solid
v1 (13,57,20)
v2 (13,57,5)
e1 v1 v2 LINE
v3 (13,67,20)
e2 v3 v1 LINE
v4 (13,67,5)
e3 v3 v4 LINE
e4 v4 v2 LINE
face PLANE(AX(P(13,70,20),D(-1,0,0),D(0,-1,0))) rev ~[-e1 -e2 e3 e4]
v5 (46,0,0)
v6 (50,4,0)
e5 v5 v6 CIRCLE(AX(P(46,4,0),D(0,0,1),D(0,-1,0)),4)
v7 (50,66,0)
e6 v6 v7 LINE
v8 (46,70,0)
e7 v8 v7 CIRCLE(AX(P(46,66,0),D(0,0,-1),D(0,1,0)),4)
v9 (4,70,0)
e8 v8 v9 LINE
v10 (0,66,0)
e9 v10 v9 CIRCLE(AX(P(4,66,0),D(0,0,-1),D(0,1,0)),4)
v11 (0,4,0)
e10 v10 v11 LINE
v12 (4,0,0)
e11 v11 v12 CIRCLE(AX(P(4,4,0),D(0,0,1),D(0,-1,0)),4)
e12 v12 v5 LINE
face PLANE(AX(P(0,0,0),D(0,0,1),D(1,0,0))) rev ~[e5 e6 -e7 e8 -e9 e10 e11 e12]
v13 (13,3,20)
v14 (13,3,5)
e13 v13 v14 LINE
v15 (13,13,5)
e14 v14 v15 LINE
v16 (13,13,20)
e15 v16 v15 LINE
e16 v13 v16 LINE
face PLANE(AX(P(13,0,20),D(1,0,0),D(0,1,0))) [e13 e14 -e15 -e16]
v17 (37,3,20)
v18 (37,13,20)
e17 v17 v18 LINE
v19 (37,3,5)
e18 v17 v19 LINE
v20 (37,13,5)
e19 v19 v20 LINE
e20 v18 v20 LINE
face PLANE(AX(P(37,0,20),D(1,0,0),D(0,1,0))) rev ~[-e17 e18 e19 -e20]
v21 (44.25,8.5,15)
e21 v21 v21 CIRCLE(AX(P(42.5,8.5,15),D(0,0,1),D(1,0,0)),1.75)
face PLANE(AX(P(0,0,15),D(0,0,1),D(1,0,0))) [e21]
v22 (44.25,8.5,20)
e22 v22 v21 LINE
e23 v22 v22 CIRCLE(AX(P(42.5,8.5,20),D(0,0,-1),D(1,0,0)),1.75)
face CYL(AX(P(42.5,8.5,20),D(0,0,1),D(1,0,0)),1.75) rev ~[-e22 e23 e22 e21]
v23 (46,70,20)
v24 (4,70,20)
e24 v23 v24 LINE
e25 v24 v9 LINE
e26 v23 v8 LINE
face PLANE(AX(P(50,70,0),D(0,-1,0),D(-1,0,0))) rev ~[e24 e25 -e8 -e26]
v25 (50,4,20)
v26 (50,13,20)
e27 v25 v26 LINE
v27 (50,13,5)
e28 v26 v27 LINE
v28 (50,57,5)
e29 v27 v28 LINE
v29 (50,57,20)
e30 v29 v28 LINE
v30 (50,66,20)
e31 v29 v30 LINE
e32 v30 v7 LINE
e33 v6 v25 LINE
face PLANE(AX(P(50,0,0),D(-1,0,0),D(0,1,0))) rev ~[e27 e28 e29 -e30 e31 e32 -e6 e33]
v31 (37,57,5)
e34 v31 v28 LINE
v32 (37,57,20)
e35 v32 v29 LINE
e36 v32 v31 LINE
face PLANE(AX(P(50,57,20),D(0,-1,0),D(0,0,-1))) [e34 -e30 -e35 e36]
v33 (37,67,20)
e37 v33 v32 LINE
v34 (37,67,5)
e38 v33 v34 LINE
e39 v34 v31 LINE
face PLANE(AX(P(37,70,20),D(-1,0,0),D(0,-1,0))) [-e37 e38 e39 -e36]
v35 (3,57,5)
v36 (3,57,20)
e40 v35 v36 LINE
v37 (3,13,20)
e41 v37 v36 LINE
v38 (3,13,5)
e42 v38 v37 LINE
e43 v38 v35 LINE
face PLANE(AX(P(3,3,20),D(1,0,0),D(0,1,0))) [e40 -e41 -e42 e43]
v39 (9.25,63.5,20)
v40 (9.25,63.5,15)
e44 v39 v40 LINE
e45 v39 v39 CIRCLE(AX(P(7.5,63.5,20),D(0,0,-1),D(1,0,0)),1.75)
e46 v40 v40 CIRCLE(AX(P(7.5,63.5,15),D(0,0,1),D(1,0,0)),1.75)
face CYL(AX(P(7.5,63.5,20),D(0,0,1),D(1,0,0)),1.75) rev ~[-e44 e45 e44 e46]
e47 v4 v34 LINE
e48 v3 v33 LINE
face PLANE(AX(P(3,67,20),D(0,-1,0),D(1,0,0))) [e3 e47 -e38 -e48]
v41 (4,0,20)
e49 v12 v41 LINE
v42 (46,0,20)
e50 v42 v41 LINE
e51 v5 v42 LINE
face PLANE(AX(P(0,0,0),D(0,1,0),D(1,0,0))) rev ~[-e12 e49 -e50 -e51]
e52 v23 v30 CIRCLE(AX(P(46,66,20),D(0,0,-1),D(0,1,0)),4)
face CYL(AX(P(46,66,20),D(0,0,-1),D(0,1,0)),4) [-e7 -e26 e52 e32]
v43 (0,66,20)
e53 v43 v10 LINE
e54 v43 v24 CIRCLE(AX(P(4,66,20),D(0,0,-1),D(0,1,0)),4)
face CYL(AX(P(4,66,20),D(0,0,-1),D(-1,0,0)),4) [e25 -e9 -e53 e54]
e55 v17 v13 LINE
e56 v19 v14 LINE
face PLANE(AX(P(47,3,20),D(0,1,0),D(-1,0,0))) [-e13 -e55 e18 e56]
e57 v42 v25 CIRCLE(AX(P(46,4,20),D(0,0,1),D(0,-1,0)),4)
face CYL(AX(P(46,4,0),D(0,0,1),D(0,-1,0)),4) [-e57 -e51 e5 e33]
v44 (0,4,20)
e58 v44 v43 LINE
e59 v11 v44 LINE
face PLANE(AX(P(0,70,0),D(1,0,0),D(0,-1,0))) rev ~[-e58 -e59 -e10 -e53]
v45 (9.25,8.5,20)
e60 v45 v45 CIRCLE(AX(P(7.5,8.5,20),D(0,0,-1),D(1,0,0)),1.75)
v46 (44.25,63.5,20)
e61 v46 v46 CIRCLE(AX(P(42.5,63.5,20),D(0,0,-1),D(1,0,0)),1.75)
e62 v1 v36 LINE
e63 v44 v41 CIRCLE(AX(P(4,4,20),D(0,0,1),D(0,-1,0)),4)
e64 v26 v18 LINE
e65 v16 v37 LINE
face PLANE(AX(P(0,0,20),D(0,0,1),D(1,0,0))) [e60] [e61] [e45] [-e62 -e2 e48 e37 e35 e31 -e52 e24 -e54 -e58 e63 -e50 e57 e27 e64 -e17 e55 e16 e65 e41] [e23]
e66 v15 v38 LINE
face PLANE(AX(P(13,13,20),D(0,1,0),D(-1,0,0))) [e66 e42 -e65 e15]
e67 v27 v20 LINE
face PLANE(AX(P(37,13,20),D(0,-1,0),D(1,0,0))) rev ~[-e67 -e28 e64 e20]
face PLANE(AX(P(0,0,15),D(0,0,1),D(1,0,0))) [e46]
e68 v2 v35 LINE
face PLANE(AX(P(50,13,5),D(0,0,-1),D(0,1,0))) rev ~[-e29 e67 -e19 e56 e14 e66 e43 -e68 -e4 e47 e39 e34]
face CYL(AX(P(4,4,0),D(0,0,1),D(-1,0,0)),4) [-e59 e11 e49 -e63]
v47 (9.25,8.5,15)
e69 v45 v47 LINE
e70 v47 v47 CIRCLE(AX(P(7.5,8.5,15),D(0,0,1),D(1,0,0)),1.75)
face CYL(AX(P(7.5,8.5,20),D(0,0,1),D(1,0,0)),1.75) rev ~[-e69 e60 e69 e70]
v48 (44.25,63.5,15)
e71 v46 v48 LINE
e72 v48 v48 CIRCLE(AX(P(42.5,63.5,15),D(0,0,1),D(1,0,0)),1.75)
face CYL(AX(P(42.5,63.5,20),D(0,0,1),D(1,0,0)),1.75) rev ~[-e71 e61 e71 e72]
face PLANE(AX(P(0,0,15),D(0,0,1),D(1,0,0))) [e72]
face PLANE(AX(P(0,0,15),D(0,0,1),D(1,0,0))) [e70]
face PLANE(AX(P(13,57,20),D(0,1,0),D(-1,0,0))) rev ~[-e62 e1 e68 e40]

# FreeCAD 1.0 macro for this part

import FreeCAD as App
import Part
import Sketcher
Q = App.Units.Quantity


def edges_at(feature, points):
    """Names of the edges that pass closest to the given points."""
    edges = feature.Shape.Edges
    near = lambda p: min(range(len(edges)), key=lambda i: edges[i].distToShape(Part.Vertex(*p))[0])
    return sorted({f"Edge{near(p) + 1}" for p in points})

doc = App.newDocument("Part")
body = doc.addObject("PartDesign::Body", "Body")

# Sketch on XY plane
sketch1 = doc.addObject("Sketcher::SketchObject", "Sketch")
body.addObject(sketch1)
sketch1.AttachmentSupport = (doc.XY_Plane, [""])
sketch1.MapMode = "FlatFace"
sketch1.addGeometry([
    Part.LineSegment(App.Vector(0, 70, 0), App.Vector(0, 0, 0)),
    Part.LineSegment(App.Vector(0, 0, 0), App.Vector(50, 0, 0)),
    Part.LineSegment(App.Vector(50, 0, 0), App.Vector(50, 70, 0)),
    Part.LineSegment(App.Vector(50, 70, 0), App.Vector(0, 70, 0)),
], False)
sketch1.addConstraint([
    Sketcher.Constraint("Coincident", 0, 2, 1, 1),
    Sketcher.Constraint("Coincident", 1, 2, 2, 1),
    Sketcher.Constraint("Coincident", 2, 2, 3, 1),
    Sketcher.Constraint("Coincident", 3, 2, 0, 1),
    Sketcher.Constraint("Vertical", 0),
    Sketcher.Constraint("Horizontal", 1),
    Sketcher.Constraint("Vertical", 2),
    Sketcher.Constraint("Horizontal", 3),
    Sketcher.Constraint("Coincident", 0, 2, -1, 1),
    Sketcher.Constraint("DistanceX", 1, 1, 1, 2, Q("50 mm")),
    Sketcher.Constraint("DistanceY", 0, 2, 0, 1, Q("70 mm")),
])
pad1 = doc.addObject("PartDesign::Pad", "Pad")
body.addObject(pad1)
pad1.Profile = sketch1
pad1.Length = 20

# Sketch on XY plane
sketch2 = doc.addObject("Sketcher::SketchObject", "Sketch001")
body.addObject(sketch2)
sketch2.AttachmentSupport = (doc.XY_Plane, [""])
sketch2.MapMode = "FlatFace"
sketch2.AttachmentOffset = App.Placement(App.Vector(0, 0, 20), App.Rotation())
sketch2.addGeometry([
    Part.LineSegment(App.Vector(47, 67, 0), App.Vector(3, 67, 0)),
    Part.LineSegment(App.Vector(3, 67, 0), App.Vector(3, 3, 0)),
    Part.LineSegment(App.Vector(3, 3, 0), App.Vector(47, 3, 0)),
    Part.LineSegment(App.Vector(47, 3, 0), App.Vector(47, 67, 0)),
], False)
sketch2.addConstraint([
    Sketcher.Constraint("Coincident", 0, 2, 1, 1),
    Sketcher.Constraint("Coincident", 1, 2, 2, 1),
    Sketcher.Constraint("Coincident", 2, 2, 3, 1),
    Sketcher.Constraint("Coincident", 3, 2, 0, 1),
    Sketcher.Constraint("Horizontal", 0),
    Sketcher.Constraint("Vertical", 1),
    Sketcher.Constraint("Horizontal", 2),
    Sketcher.Constraint("Vertical", 3),
    Sketcher.Constraint("DistanceX", 0, 2, 0, 1, Q("44 mm")),
    Sketcher.Constraint("DistanceY", 1, 2, 1, 1, Q("64 mm")),
    Sketcher.Constraint("DistanceX", -1, 1, 0, 2, Q("3 mm")),
    Sketcher.Constraint("DistanceY", -1, 1, 1, 2, Q("3 mm")),
])
pocket1 = doc.addObject("PartDesign::Pocket", "Pocket")
body.addObject(pocket1)
pocket1.Profile = sketch2
pocket1.Length = 15

# Sketch on XY plane
sketch3 = doc.addObject("Sketcher::SketchObject", "Sketch002")
body.addObject(sketch3)
sketch3.AttachmentSupport = (doc.XY_Plane, [""])
sketch3.MapMode = "FlatFace"
sketch3.AttachmentOffset = App.Placement(App.Vector(0, 0, 20), App.Rotation())
sketch3.addGeometry([
    Part.LineSegment(App.Vector(50, 57, 0), App.Vector(50, 70, 0)),  # 0
    Part.LineSegment(App.Vector(50, 70, 0), App.Vector(37, 70, 0)),  # 1
    Part.LineSegment(App.Vector(37, 70, 0), App.Vector(37, 57, 0)),  # 2
    Part.LineSegment(App.Vector(37, 57, 0), App.Vector(50, 57, 0)),  # 3
    Part.LineSegment(App.Vector(13, 57, 0), App.Vector(13, 70, 0)),  # 4
    Part.LineSegment(App.Vector(13, 70, 0), App.Vector(0, 70, 0)),  # 5
    Part.LineSegment(App.Vector(0, 70, 0), App.Vector(0, 57, 0)),  # 6
    Part.LineSegment(App.Vector(0, 57, 0), App.Vector(13, 57, 0)),  # 7
    Part.LineSegment(App.Vector(0, 13, 0), App.Vector(0, 0, 0)),  # 8
    Part.LineSegment(App.Vector(0, 0, 0), App.Vector(13, 0, 0)),  # 9
    Part.LineSegment(App.Vector(13, 0, 0), App.Vector(13, 13, 0)),  # 10
    Part.LineSegment(App.Vector(13, 13, 0), App.Vector(0, 13, 0)),  # 11
    Part.LineSegment(App.Vector(37, 13, 0), App.Vector(37, 0, 0)),  # 12
    Part.LineSegment(App.Vector(37, 0, 0), App.Vector(50, 0, 0)),  # 13
    Part.LineSegment(App.Vector(50, 0, 0), App.Vector(50, 13, 0)),  # 14
    Part.LineSegment(App.Vector(50, 13, 0), App.Vector(37, 13, 0)),  # 15
], False)
sketch3.addConstraint([
    Sketcher.Constraint("Coincident", 0, 2, 1, 1),
    Sketcher.Constraint("Coincident", 1, 2, 2, 1),
    Sketcher.Constraint("Coincident", 2, 2, 3, 1),
    Sketcher.Constraint("Coincident", 3, 2, 0, 1),
    Sketcher.Constraint("Coincident", 4, 2, 5, 1),
    Sketcher.Constraint("Coincident", 5, 2, 6, 1),
    Sketcher.Constraint("Coincident", 6, 2, 7, 1),
    Sketcher.Constraint("Coincident", 7, 2, 4, 1),
    Sketcher.Constraint("Coincident", 8, 2, 9, 1),
    Sketcher.Constraint("Coincident", 9, 2, 10, 1),
    Sketcher.Constraint("Coincident", 10, 2, 11, 1),
    Sketcher.Constraint("Coincident", 11, 2, 8, 1),
    Sketcher.Constraint("Coincident", 12, 2, 13, 1),
    Sketcher.Constraint("Coincident", 13, 2, 14, 1),
    Sketcher.Constraint("Coincident", 14, 2, 15, 1),
    Sketcher.Constraint("Coincident", 15, 2, 12, 1),
    Sketcher.Constraint("Vertical", 0),
    Sketcher.Constraint("Horizontal", 1),
    Sketcher.Constraint("Vertical", 2),
    Sketcher.Constraint("Horizontal", 3),
    Sketcher.Constraint("Vertical", 4),
    Sketcher.Constraint("Horizontal", 5),
    Sketcher.Constraint("Vertical", 6),
    Sketcher.Constraint("Horizontal", 7),
    Sketcher.Constraint("Vertical", 8),
    Sketcher.Constraint("Horizontal", 9),
    Sketcher.Constraint("Vertical", 10),
    Sketcher.Constraint("Horizontal", 11),
    Sketcher.Constraint("Vertical", 12),
    Sketcher.Constraint("Horizontal", 13),
    Sketcher.Constraint("Vertical", 14),
    Sketcher.Constraint("Horizontal", 15),
    Sketcher.Constraint("Coincident", 8, 2, -1, 1),
    Sketcher.Constraint("PointOnObject", 5, 2, -2),
    Sketcher.Constraint("PointOnObject", 12, 2, -1),
    Sketcher.Constraint("Horizontal", 1, 2, 4, 2),
    Sketcher.Constraint("Horizontal", 3, 2, 6, 2),
    Sketcher.Constraint("Horizontal", 11, 2, 14, 2),
    Sketcher.Constraint("Vertical", 7, 2, 9, 2),
    Sketcher.Constraint("Vertical", 2, 2, 12, 2),
    Sketcher.Constraint("Vertical", 3, 2, 13, 2),
    Sketcher.Constraint("Equal", 3, 5),
    Sketcher.Constraint("Equal", 15, 0),
    Sketcher.Constraint("Equal", 6, 8),
    Sketcher.Constraint("DistanceX", 1, 2, 1, 1, Q("13 mm")),
    Sketcher.Constraint("DistanceX", -1, 1, 0, 2, Q("50 mm")),
    Sketcher.Constraint("DistanceY", -1, 1, 0, 2, Q("70 mm")),
])
pad2 = doc.addObject("PartDesign::Pad", "Pad001")
body.addObject(pad2)
pad2.Profile = sketch3
pad2.Length = 15
pad2.Reversed = True

# Sketch on XY plane
sketch4 = doc.addObject("Sketcher::SketchObject", "Sketch003")
body.addObject(sketch4)
sketch4.AttachmentSupport = (doc.XY_Plane, [""])
sketch4.MapMode = "FlatFace"
sketch4.AttachmentOffset = App.Placement(App.Vector(0, 0, 20), App.Rotation())
sketch4.addGeometry([
    Part.Circle(App.Vector(7.5, 63.5, 0), App.Vector(0, 0, 1), 1.75),
    Part.Circle(App.Vector(42.5, 63.5, 0), App.Vector(0, 0, 1), 1.75),
    Part.Circle(App.Vector(7.5, 8.5, 0), App.Vector(0, 0, 1), 1.75),
    Part.Circle(App.Vector(42.5, 8.5, 0), App.Vector(0, 0, 1), 1.75),
], False)
sketch4.addConstraint([
    Sketcher.Constraint("Equal", 0, 1),
    Sketcher.Constraint("Equal", 1, 2),
    Sketcher.Constraint("Equal", 2, 3),
    Sketcher.Constraint("Horizontal", 0, 3, 1, 3),
    Sketcher.Constraint("Horizontal", 2, 3, 3, 3),
    Sketcher.Constraint("Vertical", 0, 3, 2, 3),
    Sketcher.Constraint("Vertical", 1, 3, 3, 3),
    Sketcher.Constraint("Diameter", 0, Q("3.5 mm")),
    Sketcher.Constraint("DistanceX", 0, 3, 1, 3, Q("35 mm")),
    Sketcher.Constraint("DistanceY", 2, 3, 0, 3, Q("55 mm")),
    Sketcher.Constraint("DistanceX", -1, 1, 0, 3, Q("7.5 mm")),
    Sketcher.Constraint("DistanceY", -1, 1, 0, 3, Q("63.5 mm")),
])
pocket2 = doc.addObject("PartDesign::Pocket", "Pocket001")
body.addObject(pocket2)
pocket2.Profile = sketch4
pocket2.Length = 5

# Sketch on YZ plane
sketch5 = doc.addObject("Sketcher::SketchObject", "Sketch004")
body.addObject(sketch5)
sketch5.AttachmentSupport = (doc.YZ_Plane, [""])
sketch5.MapMode = "FlatFace"
sketch5.AttachmentOffset = App.Placement(App.Vector(0, 0, 50), App.Rotation())
sketch5.addGeometry([
    Part.LineSegment(App.Vector(57, 20, 0), App.Vector(13, 20, 0)),
    Part.LineSegment(App.Vector(13, 20, 0), App.Vector(13, 5, 0)),
    Part.LineSegment(App.Vector(13, 5, 0), App.Vector(57, 5, 0)),
    Part.LineSegment(App.Vector(57, 5, 0), App.Vector(57, 20, 0)),
], False)
sketch5.addConstraint([
    Sketcher.Constraint("Coincident", 0, 2, 1, 1),
    Sketcher.Constraint("Coincident", 1, 2, 2, 1),
    Sketcher.Constraint("Coincident", 2, 2, 3, 1),
    Sketcher.Constraint("Coincident", 3, 2, 0, 1),
    Sketcher.Constraint("Horizontal", 0),
    Sketcher.Constraint("Vertical", 1),
    Sketcher.Constraint("Horizontal", 2),
    Sketcher.Constraint("Vertical", 3),
    Sketcher.Constraint("DistanceX", 0, 2, 0, 1, Q("44 mm")),
    Sketcher.Constraint("DistanceY", 1, 2, 1, 1, Q("15 mm")),
    Sketcher.Constraint("DistanceX", -1, 1, 0, 2, Q("13 mm")),
    Sketcher.Constraint("DistanceY", -1, 1, 0, 2, Q("20 mm")),
])
pocket3 = doc.addObject("PartDesign::Pocket", "Pocket002")
body.addObject(pocket3)
pocket3.Profile = sketch5
pocket3.Length = 47
doc.recompute()

fillet = doc.addObject("PartDesign::Fillet", "Fillet")
body.addObject(fillet)
fillet.Base = (pocket3, edges_at(pocket3, [
    (0, 70, 10),
    (50, 70, 10),
    (50, 0, 10),
    (0, 0, 10),
]))
fillet.Radius = 4

doc.recompute()
